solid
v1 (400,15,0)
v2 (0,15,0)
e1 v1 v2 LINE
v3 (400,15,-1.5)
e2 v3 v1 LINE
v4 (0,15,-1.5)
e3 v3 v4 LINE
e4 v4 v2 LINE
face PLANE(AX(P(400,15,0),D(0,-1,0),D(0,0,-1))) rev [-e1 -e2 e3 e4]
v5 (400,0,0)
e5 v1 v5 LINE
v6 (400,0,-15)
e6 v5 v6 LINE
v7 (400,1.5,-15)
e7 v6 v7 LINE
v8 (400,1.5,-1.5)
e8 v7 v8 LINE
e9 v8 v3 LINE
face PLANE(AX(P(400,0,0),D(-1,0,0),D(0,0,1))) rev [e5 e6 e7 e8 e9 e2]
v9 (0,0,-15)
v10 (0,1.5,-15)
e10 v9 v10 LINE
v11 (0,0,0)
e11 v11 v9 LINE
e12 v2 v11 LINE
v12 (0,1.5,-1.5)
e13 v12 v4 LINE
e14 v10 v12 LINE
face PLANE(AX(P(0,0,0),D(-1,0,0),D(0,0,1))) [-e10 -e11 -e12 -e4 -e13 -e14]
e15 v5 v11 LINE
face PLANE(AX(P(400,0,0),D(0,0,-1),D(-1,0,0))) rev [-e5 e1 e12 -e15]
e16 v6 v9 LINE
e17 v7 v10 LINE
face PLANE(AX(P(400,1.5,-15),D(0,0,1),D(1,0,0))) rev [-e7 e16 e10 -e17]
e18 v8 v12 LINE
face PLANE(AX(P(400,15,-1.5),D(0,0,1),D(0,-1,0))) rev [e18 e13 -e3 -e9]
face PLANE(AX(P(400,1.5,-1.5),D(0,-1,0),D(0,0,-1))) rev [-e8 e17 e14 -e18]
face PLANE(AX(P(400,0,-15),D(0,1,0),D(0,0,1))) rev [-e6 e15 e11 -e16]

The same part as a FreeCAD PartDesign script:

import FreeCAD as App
import Part
import Sketcher
from FreeCAD import Vector
Q = App.Units.Quantity

doc = App.newDocument("Part")
body = doc.addObject("PartDesign::Body", "Body")

# Sketch on YZ plane
sketch1 = body.newObject("Sketcher::SketchObject", "Sketch")
sketch1.AttachmentSupport = (doc.getObject("YZ_Plane"), [""])
sketch1.MapMode = "FlatFace"
sketch1.addGeometry([
    Part.LineSegment(Vector(15, 0, 0), Vector(0, 0, 0)),  # 0
    Part.LineSegment(Vector(0, 0, 0), Vector(0, -15, 0)),  # 1
    Part.LineSegment(Vector(0, -15, 0), Vector(1.5, -15, 0)),  # 2
    Part.LineSegment(Vector(1.5, -15, 0), Vector(1.5, -1.5, 0)),  # 3
    Part.LineSegment(Vector(1.5, -1.5, 0), Vector(15, -1.5, 0)),  # 4
    Part.LineSegment(Vector(15, -1.5, 0), Vector(15, 0, 0)),  # 5
], False)
sketch1.addConstraint([
    Sketcher.Constraint("Coincident", 0, 2, 1, 1),
    Sketcher.Constraint("Coincident", 1, 2, 2, 1),
    Sketcher.Constraint("Coincident", 2, 2, 3, 1),
    Sketcher.Constraint("Coincident", 3, 2, 4, 1),
    Sketcher.Constraint("Coincident", 4, 2, 5, 1),
    Sketcher.Constraint("Coincident", 5, 2, 0, 1),
    Sketcher.Constraint("Horizontal", 0),
    Sketcher.Constraint("Vertical", 1),
    Sketcher.Constraint("Horizontal", 2),
    Sketcher.Constraint("Vertical", 3),
    Sketcher.Constraint("Horizontal", 4),
    Sketcher.Constraint("Vertical", 5),
    Sketcher.Constraint("Coincident", 0, 2, -1, 1),
    Sketcher.Constraint("Equal", 0, 1),
    Sketcher.Constraint("Equal", 4, 3),
    Sketcher.Constraint("DistanceX", 0, 2, 0, 1, Q("15 mm")),
    Sketcher.Constraint("DistanceX", 2, 1, 2, 2, Q("1.5 mm")),
])
pad1 = body.newObject("PartDesign::Pad", "Pad")
pad1.Profile = sketch1
pad1.Length = 400

doc.recompute()
